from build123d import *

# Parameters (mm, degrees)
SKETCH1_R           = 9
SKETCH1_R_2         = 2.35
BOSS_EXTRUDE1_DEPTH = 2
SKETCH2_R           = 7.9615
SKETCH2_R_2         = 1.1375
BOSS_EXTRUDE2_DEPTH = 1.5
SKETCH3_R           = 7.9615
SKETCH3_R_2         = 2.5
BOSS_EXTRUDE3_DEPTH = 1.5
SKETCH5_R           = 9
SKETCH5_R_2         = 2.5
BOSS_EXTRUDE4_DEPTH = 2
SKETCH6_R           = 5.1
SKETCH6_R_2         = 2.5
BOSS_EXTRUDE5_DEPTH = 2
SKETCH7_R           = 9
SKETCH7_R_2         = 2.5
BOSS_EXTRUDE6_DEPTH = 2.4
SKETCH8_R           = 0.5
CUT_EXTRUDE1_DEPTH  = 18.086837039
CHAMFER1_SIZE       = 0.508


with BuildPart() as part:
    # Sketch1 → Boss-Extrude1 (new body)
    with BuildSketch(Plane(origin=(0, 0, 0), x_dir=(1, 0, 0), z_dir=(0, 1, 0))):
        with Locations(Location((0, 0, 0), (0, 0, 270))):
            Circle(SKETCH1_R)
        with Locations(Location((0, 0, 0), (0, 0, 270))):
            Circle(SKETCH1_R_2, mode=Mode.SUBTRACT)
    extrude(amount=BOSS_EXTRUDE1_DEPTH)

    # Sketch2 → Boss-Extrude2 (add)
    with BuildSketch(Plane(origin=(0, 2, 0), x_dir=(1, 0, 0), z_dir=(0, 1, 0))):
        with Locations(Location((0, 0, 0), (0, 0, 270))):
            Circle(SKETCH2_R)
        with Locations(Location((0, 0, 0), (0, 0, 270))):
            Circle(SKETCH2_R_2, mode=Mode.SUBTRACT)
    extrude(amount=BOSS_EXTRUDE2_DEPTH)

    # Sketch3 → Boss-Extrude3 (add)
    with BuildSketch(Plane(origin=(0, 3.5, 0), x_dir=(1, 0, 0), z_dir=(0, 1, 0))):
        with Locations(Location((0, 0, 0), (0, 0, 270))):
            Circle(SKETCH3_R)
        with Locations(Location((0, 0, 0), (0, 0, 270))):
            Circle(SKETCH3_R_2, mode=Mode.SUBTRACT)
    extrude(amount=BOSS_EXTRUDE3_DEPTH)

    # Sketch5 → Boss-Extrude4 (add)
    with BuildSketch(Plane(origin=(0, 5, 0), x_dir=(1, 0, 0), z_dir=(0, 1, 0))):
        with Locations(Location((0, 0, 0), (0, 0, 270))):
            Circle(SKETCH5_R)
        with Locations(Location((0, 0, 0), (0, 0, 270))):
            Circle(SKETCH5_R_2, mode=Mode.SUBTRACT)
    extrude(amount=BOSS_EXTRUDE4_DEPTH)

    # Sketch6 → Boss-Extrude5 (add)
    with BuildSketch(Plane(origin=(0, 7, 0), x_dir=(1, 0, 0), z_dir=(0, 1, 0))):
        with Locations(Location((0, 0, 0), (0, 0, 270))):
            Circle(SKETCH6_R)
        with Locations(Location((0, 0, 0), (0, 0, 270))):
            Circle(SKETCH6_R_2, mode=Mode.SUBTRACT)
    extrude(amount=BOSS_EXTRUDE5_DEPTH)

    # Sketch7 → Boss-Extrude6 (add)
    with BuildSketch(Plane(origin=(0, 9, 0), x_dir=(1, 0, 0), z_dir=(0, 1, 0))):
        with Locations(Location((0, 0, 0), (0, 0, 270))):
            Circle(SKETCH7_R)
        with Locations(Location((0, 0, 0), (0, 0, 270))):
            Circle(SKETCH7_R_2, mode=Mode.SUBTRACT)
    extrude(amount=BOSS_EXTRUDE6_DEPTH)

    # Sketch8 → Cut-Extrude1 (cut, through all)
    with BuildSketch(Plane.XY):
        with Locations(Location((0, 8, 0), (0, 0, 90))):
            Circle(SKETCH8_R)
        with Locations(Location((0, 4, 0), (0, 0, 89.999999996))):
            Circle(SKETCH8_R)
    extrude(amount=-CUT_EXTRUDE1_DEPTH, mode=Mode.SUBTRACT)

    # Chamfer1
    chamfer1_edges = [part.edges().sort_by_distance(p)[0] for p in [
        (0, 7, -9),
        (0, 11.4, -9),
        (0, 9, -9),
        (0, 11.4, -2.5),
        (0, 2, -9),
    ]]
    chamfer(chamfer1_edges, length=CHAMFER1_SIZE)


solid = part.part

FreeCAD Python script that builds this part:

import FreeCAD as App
import Part
import Sketcher
from FreeCAD import Vector
Q = App.Units.Quantity


def edges_at(feature, points):
    """Names of the edges that pass closest to the given points."""
    edges = feature.Shape.Edges
    near = lambda p: min(range(len(edges)), key=lambda i: edges[i].distToShape(Part.Vertex(*p))[0])
    return sorted({f"Edge{near(p) + 1}" for p in points})

doc = App.newDocument("Part")
params = doc.addObject("Spreadsheet::Sheet", "Params")
for row, (alias, value) in enumerate([
    ("sketch1_diameter", "18 mm"),
    ("sketch1_diameter2", "4.7 mm"),
    ("pad1_length", "2 mm"),
    ("pad2_length", "1.5 mm"),
    ("sketch3_diameter", "5 mm"),
    ("pad3_length", "1.5 mm"),
    ("sketch4_diameter", "18 mm"),
    ("sketch4_diameter2", "5 mm"),
    ("pad4_length", "2 mm"),
    ("sketch5_diameter", "5 mm"),
    ("sketch5_diameter2", "10.2 mm"),
    ("pad5_length", "2 mm"),
    ("sketch6_diameter", "18 mm"),
    ("sketch6_diameter2", "5 mm"),
    ("pad6_length", "2.4 mm"),
    ("sketch7_diameter", "1 mm"),
    ("chamfer_size", "0.508 mm"),
], start=1):
    params.set(f"A{row}", alias)
    params.set(f"B{row}", "=" + value)
    params.setAlias(f"B{row}", alias)

body = doc.addObject("PartDesign::Body", "Body")

sketch1 = body.newObject("Sketcher::SketchObject", "Sketch")
sketch1.AttachmentSupport = (doc.getObject("XZ_Plane"), [""])
sketch1.MapMode = "FlatFace"
sketch1.addGeometry(Part.Circle(Vector(0, 0, 0), Vector(0, 0, 1), 9), False)
sketch1.addGeometry(Part.Circle(Vector(0, 0, 0), Vector(0, 0, 1), 2.4), False)
sketch1.addConstraint(Sketcher.Constraint("Coincident", 0, 3, -1, 1))
sketch1.addConstraint(Sketcher.Constraint("Coincident", 1, 3, -1, 1))
sketch1.addConstraint(Sketcher.Constraint("Diameter", 0, Q("18 mm")))
sketch1.addConstraint(Sketcher.Constraint("Diameter", 1, Q("4.7 mm")))
sketch1.setExpression("Constraints[2]", "Params.sketch1_diameter")
sketch1.setExpression("Constraints[3]", "Params.sketch1_diameter2")
pad1 = body.newObject("PartDesign::Pad", "Pad")
pad1.Profile = sketch1
pad1.setExpression("Length", "Params.pad1_length")
pad1.Reversed = True

sketch2 = body.newObject("Sketcher::SketchObject", "Sketch001")
sketch2.AttachmentSupport = (doc.getObject("XZ_Plane"), [""])
sketch2.MapMode = "FlatFace"
sketch2.AttachmentOffset = App.Placement(Vector(0, 0, -2), App.Rotation())
sketch2.addGeometry(Part.Circle(Vector(0, 0, 0), Vector(0, 0, 1), 8), False)
sketch2.addGeometry(Part.Circle(Vector(0, 0, 0), Vector(0, 0, 1), 1.1), False)
sketch2.addConstraint(Sketcher.Constraint("Coincident", 0, 3, -1, 1))
sketch2.addConstraint(Sketcher.Constraint("Coincident", 1, 3, -1, 1))
sketch2.addConstraint(Sketcher.Constraint("Diameter", 0, Q("15.923 mm")))
sketch2.addConstraint(Sketcher.Constraint("Diameter", 1, Q("2.275 mm")))
pad2 = body.newObject("PartDesign::Pad", "Pad001")
pad2.Profile = sketch2
pad2.setExpression("Length", "Params.pad2_length")
pad2.Reversed = True

sketch3 = body.newObject("Sketcher::SketchObject", "Sketch002")
sketch3.AttachmentSupport = (doc.getObject("XZ_Plane"), [""])
sketch3.MapMode = "FlatFace"
sketch3.AttachmentOffset = App.Placement(Vector(0, 0, -3.5), App.Rotation())
sketch3.addGeometry(Part.Circle(Vector(0, 0, 0), Vector(0, 0, 1), 8), False)
sketch3.addGeometry(Part.Circle(Vector(0, 0, 0), Vector(0, 0, 1), 2.5), False)
sketch3.addConstraint(Sketcher.Constraint("Coincident", 0, 3, -1, 1))
sketch3.addConstraint(Sketcher.Constraint("Coincident", 1, 3, -1, 1))
sketch3.addConstraint(Sketcher.Constraint("Diameter", 1, Q("5 mm")))
sketch3.addConstraint(Sketcher.Constraint("Diameter", 0, Q("15.923 mm")))
sketch3.setExpression("Constraints[2]", "Params.sketch3_diameter")
pad3 = body.newObject("PartDesign::Pad", "Pad002")
pad3.Profile = sketch3
pad3.setExpression("Length", "Params.pad3_length")
pad3.Reversed = True

sketch4 = body.newObject("Sketcher::SketchObject", "Sketch003")
sketch4.AttachmentSupport = (doc.getObject("XZ_Plane"), [""])
sketch4.MapMode = "FlatFace"
sketch4.AttachmentOffset = App.Placement(Vector(0, 0, -5), App.Rotation())
sketch4.addGeometry(Part.Circle(Vector(0, 0, 0), Vector(0, 0, 1), 9), False)
sketch4.addGeometry(Part.Circle(Vector(0, 0, 0), Vector(0, 0, 1), 2.5), False)
sketch4.addConstraint(Sketcher.Constraint("Coincident", 0, 3, -1, 1))
sketch4.addConstraint(Sketcher.Constraint("Coincident", 1, 3, -1, 1))
sketch4.addConstraint(Sketcher.Constraint("Diameter", 0, Q("18 mm")))
sketch4.addConstraint(Sketcher.Constraint("Diameter", 1, Q("5 mm")))
sketch4.setExpression("Constraints[2]", "Params.sketch4_diameter")
sketch4.setExpression("Constraints[3]", "Params.sketch4_diameter2")
pad4 = body.newObject("PartDesign::Pad", "Pad003")
pad4.Profile = sketch4
pad4.setExpression("Length", "Params.pad4_length")
pad4.Reversed = True

sketch5 = body.newObject("Sketcher::SketchObject", "Sketch004")
sketch5.AttachmentSupport = (doc.getObject("XZ_Plane"), [""])
sketch5.MapMode = "FlatFace"
sketch5.AttachmentOffset = App.Placement(Vector(0, 0, -7), App.Rotation())
sketch5.addGeometry(Part.Circle(Vector(0, 0, 0), Vector(0, 0, 1), 5.1), False)
sketch5.addGeometry(Part.Circle(Vector(0, 0, 0), Vector(0, 0, 1), 2.5), False)
sketch5.addConstraint(Sketcher.Constraint("Coincident", 0, 3, -1, 1))
sketch5.addConstraint(Sketcher.Constraint("Coincident", 1, 3, -1, 1))
sketch5.addConstraint(Sketcher.Constraint("Diameter", 1, Q("5 mm")))
sketch5.addConstraint(Sketcher.Constraint("Diameter", 0, Q("10.2 mm")))
sketch5.setExpression("Constraints[2]", "Params.sketch5_diameter")
sketch5.setExpression("Constraints[3]", "Params.sketch5_diameter2")
pad5 = body.newObject("PartDesign::Pad", "Pad004")
pad5.Profile = sketch5
pad5.setExpression("Length", "Params.pad5_length")
pad5.Reversed = True

sketch6 = body.newObject("Sketcher::SketchObject", "Sketch005")
sketch6.AttachmentSupport = (doc.getObject("XZ_Plane"), [""])
sketch6.MapMode = "FlatFace"
sketch6.AttachmentOffset = App.Placement(Vector(0, 0, -9), App.Rotation())
sketch6.addGeometry(Part.Circle(Vector(0, 0, 0), Vector(0, 0, 1), 9), False)
sketch6.addGeometry(Part.Circle(Vector(0, 0, 0), Vector(0, 0, 1), 2.5), False)
sketch6.addConstraint(Sketcher.Constraint("Coincident", 0, 3, -1, 1))
sketch6.addConstraint(Sketcher.Constraint("Coincident", 1, 3, -1, 1))
sketch6.addConstraint(Sketcher.Constraint("Diameter", 0, Q("18 mm")))
sketch6.addConstraint(Sketcher.Constraint("Diameter", 1, Q("5 mm")))
sketch6.setExpression("Constraints[2]", "Params.sketch6_diameter")
sketch6.setExpression("Constraints[3]", "Params.sketch6_diameter2")
pad6 = body.newObject("PartDesign::Pad", "Pad005")
pad6.Profile = sketch6
pad6.setExpression("Length", "Params.pad6_length")
pad6.Reversed = True

sketch7 = body.newObject("Sketcher::SketchObject", "Sketch006")
sketch7.AttachmentSupport = (doc.getObject("XY_Plane"), [""])
sketch7.MapMode = "FlatFace"
sketch7.addGeometry(Part.Circle(Vector(0, 8, 0), Vector(0, 0, 1), 0.5), False)
sketch7.addGeometry(Part.Circle(Vector(0, 4, 0), Vector(0, 0, 1), 0.5), False)
sketch7.addConstraint(Sketcher.Constraint("Equal", 0, 1))
sketch7.addConstraint(Sketcher.Constraint("PointOnObject", 0, 3, -2))
sketch7.addConstraint(Sketcher.Constraint("PointOnObject", 1, 3, -2))
sketch7.addConstraint(Sketcher.Constraint("Diameter", 0, Q("1 mm")))
sketch7.addConstraint(Sketcher.Constraint("DistanceY", -1, 1, 0, 3, Q("8 mm")))
sketch7.addConstraint(Sketcher.Constraint("DistanceY", -1, 1, 1, 3, Q("4 mm")))
sketch7.setExpression("Constraints[3]", "Params.sketch7_diameter")
pocket1 = body.newObject("PartDesign::Pocket", "Pocket")
pocket1.Profile = sketch7
pocket1.Type = "ThroughAll"
doc.recompute()

chamfer = body.newObject("PartDesign::Chamfer", "Chamfer")
chamfer.Base = (pocket1, edges_at(pocket1, [
    (0, 7, -9),
    (0, 11.4, -9),
    (0, 9, -9),
    (0, 11.4, -2.5),
    (0, 2, -9),
]))
chamfer.setExpression("Size", "Params.chamfer_size")

doc.recompute()
